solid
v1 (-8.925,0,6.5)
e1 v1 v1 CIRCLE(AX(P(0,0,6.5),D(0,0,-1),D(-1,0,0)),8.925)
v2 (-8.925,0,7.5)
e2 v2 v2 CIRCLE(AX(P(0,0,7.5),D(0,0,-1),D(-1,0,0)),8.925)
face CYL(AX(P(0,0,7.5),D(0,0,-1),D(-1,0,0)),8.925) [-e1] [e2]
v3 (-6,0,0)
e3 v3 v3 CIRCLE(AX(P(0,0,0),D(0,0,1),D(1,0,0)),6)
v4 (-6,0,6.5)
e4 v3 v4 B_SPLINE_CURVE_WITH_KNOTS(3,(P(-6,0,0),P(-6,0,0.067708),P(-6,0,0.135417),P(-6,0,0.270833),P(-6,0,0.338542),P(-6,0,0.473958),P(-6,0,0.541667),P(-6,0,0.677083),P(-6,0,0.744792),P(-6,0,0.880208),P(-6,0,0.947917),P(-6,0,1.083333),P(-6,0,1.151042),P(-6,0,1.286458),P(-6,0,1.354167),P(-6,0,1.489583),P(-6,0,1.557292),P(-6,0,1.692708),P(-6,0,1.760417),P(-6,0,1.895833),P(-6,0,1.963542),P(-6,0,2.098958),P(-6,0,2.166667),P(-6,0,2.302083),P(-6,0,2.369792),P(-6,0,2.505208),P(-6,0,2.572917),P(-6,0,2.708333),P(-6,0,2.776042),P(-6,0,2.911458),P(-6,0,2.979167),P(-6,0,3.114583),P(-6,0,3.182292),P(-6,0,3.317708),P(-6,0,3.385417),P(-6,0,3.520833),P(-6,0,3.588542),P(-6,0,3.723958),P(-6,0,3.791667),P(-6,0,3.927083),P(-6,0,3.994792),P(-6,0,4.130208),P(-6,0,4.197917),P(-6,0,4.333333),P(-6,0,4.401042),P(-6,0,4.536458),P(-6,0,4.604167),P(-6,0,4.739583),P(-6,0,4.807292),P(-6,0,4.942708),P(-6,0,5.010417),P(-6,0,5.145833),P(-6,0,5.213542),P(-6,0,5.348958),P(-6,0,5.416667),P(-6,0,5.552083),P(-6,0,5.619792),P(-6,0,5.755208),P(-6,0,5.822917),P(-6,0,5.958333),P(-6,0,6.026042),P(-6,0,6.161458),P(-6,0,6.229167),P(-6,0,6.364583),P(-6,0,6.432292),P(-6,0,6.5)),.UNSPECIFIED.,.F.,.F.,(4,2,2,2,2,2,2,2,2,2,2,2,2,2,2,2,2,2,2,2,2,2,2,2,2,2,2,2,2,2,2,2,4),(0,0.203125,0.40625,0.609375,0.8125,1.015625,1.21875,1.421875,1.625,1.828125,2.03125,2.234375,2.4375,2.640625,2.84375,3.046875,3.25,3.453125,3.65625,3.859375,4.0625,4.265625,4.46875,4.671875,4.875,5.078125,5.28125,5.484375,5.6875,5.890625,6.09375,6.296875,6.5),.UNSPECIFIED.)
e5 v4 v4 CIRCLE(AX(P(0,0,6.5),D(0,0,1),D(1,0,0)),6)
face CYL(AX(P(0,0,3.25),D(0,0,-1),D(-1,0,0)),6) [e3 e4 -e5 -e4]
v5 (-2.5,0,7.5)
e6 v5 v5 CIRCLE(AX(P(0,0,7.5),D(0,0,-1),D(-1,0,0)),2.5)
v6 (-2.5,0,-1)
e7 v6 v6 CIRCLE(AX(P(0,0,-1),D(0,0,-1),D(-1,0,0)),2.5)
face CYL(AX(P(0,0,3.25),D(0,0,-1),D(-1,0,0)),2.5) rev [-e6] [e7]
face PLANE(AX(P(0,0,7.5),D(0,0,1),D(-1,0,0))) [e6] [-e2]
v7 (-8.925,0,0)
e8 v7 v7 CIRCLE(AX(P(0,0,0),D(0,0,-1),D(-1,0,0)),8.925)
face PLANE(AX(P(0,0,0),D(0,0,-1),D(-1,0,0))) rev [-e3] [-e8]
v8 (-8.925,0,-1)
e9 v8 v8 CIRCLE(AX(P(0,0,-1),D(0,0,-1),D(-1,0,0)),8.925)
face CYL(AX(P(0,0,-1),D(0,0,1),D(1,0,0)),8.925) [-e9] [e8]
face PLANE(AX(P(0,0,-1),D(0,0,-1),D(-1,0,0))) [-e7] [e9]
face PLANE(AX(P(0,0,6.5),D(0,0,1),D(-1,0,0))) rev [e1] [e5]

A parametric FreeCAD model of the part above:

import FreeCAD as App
import Part
import Sketcher

V = App.Vector

doc = App.newDocument("Part")
body = doc.addObject("PartDesign::Body", "Body")

sketch1 = body.newObject("Sketcher::SketchObject", "Sketch")
sketch1.AttachmentSupport = (doc.getObject("XY_Plane"), [""])
sketch1.MapMode = "FlatFace"
sketch1.addGeometry(Part.Circle(V(0, 0, 0), V(0, 0, 1), 6), False)
sketch1.addConstraint([
    Sketcher.Constraint("Coincident", 0, 3, -1, 1),
    Sketcher.Constraint("Diameter", 0, 12.0),
])
pad1 = body.newObject("PartDesign::Pad", "Pad")
pad1.Profile = sketch1
pad1.Length = 3.25

sketch2 = body.newObject("Sketcher::SketchObject", "Sketch001")
sketch2.AttachmentSupport = (doc.getObject("XY_Plane"), [""])
sketch2.MapMode = "FlatFace"
sketch2.addGeometry(Part.Circle(V(0, 0, 0), V(0, 0, 1), 8.925), False)
sketch2.addConstraint([
    Sketcher.Constraint("Coincident", 0, 3, -1, 1),
    Sketcher.Constraint("Diameter", 0, 17.85),
])
pad2 = body.newObject("PartDesign::Pad", "Pad001")
pad2.Profile = sketch2
pad2.Length = 1
pad2.Reversed = True

sketch3 = body.newObject("Sketcher::SketchObject", "Sketch002")
sketch3.AttachmentSupport = (doc.getObject("XY_Plane"), [""])
sketch3.MapMode = "FlatFace"
sketch3.AttachmentOffset = App.Placement(V(0, 0, -1), App.Rotation())
sketch3.addGeometry(Part.Circle(V(0, 0, 0), V(0, 0, 1), 2.5), False)
sketch3.addConstraint([
    Sketcher.Constraint("Coincident", 0, 3, -1, 1),
    Sketcher.Constraint("Diameter", 0, 5.0),
])
pocket1 = body.newObject("PartDesign::Pocket", "Pocket")
pocket1.Profile = sketch3
pocket1.Type = "ThroughAll"
pocket1.Reversed = True
doc.recompute()

datumplane = body.newObject("PartDesign::Plane", "DatumPlane")
datumplane.AttachmentSupport = (doc.getObject("XY_Plane"), [""])
datumplane.MapMode = "FlatFace"
datumplane.AttachmentOffset = App.Placement(V(0, 0, 3.25), App.Rotation())
mirrored = body.newObject("PartDesign::Mirrored", "Mirrored")
mirrored.Originals = [pad1, pad2, pocket1]
mirrored.MirrorPlane = (datumplane, [""])
body.Tip = mirrored

doc.recompute()
